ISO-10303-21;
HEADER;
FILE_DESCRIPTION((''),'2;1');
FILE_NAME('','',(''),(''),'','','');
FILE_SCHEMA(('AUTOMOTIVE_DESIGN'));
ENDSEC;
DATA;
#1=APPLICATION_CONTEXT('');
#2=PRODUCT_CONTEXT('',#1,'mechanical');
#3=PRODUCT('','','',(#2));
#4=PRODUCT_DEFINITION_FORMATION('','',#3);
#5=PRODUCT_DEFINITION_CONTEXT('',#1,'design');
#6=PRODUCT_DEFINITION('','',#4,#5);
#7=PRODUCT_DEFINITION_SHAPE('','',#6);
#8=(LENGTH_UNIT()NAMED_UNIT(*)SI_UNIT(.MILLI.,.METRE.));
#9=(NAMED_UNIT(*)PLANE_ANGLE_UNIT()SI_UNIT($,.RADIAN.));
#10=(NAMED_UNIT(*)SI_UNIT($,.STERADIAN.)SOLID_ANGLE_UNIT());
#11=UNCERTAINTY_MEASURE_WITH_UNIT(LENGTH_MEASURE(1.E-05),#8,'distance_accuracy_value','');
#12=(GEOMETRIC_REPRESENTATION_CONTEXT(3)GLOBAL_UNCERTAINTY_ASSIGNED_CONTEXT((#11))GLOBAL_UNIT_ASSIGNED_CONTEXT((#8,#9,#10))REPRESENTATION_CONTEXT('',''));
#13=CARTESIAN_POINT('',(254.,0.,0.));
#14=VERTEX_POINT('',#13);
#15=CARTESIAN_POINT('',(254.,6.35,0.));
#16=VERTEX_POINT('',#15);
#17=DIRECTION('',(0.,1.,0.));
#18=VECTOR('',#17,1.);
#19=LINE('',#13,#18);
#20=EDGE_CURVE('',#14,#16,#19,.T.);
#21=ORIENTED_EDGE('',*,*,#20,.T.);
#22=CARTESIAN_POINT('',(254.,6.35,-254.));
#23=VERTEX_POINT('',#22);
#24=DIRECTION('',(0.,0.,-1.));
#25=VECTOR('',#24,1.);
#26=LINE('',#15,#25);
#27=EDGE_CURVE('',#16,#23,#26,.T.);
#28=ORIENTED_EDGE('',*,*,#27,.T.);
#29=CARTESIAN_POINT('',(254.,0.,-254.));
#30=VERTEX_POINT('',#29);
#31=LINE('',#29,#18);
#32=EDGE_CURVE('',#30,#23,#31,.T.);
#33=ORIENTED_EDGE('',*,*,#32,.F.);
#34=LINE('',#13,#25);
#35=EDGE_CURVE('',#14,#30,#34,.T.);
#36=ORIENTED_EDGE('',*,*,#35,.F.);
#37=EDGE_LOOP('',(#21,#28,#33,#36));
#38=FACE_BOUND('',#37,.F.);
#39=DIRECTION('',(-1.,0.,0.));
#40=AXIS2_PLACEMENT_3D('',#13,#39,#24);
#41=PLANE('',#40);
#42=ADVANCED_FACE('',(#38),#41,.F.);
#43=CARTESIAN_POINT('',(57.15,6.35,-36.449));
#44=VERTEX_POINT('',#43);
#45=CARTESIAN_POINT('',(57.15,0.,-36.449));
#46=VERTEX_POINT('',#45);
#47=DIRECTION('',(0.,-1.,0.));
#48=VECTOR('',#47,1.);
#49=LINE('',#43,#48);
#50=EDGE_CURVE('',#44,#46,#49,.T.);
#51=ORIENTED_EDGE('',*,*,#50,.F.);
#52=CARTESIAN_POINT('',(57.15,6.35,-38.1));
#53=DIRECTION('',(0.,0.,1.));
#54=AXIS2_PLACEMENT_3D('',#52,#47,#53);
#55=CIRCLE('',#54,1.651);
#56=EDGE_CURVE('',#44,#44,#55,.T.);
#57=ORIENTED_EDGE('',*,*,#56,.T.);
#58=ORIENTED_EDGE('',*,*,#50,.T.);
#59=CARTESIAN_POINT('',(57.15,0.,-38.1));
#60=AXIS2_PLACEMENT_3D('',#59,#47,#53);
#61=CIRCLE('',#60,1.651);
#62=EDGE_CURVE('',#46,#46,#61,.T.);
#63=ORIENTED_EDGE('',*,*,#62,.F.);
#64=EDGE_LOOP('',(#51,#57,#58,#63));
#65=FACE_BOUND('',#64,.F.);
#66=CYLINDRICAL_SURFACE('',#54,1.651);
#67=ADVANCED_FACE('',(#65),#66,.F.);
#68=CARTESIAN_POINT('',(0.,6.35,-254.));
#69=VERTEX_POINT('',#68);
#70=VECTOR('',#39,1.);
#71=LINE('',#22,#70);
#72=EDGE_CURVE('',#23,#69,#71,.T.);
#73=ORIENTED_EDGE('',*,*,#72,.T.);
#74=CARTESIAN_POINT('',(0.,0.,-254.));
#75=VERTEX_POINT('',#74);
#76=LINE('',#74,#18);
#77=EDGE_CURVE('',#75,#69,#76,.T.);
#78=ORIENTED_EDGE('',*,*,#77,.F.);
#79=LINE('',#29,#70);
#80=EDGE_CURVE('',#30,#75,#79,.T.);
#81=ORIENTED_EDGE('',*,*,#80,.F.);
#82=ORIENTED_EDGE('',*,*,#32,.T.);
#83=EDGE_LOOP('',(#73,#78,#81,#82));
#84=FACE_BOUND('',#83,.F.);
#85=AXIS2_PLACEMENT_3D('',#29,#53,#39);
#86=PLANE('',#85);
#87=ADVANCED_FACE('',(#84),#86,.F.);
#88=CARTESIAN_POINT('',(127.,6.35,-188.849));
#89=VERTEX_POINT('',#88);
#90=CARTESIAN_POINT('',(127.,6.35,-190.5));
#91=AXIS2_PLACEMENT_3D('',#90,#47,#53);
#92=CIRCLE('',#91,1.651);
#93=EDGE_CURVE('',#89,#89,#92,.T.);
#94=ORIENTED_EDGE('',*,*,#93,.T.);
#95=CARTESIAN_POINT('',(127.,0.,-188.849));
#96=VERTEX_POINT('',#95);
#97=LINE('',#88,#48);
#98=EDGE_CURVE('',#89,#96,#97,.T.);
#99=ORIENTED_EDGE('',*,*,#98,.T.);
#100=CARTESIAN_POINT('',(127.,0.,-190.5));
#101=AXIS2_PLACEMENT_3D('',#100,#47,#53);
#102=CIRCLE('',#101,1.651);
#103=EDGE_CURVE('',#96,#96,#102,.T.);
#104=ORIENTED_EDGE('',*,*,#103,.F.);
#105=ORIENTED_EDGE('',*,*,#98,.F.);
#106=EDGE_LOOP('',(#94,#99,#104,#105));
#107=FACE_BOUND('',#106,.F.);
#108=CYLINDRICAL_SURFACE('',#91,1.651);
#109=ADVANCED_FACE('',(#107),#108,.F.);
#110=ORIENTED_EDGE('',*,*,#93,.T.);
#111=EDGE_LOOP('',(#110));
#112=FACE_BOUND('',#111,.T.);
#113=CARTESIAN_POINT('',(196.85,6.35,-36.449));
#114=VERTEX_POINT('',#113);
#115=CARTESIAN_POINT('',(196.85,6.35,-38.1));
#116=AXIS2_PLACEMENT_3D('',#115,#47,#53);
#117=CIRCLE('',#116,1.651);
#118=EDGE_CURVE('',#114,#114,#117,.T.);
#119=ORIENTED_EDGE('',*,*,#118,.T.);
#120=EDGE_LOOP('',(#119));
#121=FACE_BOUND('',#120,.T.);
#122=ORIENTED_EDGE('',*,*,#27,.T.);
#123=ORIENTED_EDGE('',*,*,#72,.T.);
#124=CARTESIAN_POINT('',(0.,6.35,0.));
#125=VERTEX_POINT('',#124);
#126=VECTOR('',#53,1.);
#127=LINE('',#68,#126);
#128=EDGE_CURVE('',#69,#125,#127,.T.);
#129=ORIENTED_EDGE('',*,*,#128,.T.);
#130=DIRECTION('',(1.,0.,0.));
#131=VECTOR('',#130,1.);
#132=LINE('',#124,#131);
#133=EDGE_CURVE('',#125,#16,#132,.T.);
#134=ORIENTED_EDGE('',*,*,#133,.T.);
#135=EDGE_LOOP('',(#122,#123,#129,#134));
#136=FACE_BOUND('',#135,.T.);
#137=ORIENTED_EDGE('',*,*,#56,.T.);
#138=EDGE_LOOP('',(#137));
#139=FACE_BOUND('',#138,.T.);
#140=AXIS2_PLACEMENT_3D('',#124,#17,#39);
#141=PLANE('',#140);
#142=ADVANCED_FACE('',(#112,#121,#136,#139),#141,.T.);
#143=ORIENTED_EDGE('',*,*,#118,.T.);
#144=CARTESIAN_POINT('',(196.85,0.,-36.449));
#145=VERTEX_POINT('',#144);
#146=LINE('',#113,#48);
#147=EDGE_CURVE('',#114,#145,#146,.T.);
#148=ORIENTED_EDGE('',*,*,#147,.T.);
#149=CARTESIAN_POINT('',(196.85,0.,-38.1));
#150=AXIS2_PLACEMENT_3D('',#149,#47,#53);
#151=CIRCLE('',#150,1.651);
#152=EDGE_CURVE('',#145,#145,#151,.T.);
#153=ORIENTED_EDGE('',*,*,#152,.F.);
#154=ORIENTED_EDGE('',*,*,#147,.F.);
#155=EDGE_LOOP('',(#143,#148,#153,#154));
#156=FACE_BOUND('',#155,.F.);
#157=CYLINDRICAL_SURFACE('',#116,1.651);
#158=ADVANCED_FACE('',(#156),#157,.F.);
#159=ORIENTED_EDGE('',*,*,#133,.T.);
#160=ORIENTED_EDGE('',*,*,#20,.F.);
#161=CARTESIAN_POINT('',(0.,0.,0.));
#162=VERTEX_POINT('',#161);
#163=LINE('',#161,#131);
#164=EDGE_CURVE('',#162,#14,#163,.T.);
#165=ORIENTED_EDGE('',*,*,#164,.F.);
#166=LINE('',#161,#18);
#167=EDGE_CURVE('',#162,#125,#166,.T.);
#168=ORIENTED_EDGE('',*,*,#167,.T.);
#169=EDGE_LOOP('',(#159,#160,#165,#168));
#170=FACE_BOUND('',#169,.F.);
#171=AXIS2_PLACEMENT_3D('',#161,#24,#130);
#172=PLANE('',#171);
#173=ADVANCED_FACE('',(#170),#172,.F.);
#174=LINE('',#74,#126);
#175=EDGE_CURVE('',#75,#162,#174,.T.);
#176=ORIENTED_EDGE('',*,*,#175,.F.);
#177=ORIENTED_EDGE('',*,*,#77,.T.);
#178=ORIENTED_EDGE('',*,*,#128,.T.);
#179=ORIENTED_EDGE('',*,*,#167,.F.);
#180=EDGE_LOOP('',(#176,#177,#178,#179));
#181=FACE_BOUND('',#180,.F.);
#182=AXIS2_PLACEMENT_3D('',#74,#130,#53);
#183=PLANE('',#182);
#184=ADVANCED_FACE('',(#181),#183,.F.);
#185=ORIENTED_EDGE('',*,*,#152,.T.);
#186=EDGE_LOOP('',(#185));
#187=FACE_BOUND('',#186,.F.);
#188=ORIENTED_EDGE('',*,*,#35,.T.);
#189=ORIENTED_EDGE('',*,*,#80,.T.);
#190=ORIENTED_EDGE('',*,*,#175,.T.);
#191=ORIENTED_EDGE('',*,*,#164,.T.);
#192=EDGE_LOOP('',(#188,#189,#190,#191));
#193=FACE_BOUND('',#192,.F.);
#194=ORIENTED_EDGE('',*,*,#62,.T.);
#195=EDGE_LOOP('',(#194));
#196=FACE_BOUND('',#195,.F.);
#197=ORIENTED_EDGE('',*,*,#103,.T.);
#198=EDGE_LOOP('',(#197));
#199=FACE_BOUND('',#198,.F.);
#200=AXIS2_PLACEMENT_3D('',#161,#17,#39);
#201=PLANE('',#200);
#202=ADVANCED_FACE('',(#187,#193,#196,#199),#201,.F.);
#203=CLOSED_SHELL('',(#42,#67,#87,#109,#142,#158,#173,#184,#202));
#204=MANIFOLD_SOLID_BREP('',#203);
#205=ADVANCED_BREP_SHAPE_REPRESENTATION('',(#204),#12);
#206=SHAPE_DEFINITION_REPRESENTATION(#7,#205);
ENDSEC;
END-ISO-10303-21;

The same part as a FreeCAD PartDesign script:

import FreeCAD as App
import Part
import Sketcher
from FreeCAD import Vector
Q = App.Units.Quantity

doc = App.newDocument("Part")
body = doc.addObject("PartDesign::Body", "Body")

# Sketch on XZ plane
sketch1 = body.newObject("Sketcher::SketchObject", "Sketch")
sketch1.AttachmentSupport = (doc.getObject("XZ_Plane"), [""])
sketch1.MapMode = "FlatFace"
sketch1.addGeometry(Part.LineSegment(Vector(0, -254, 0), Vector(0, 0, 0)), False)
sketch1.addGeometry(Part.LineSegment(Vector(0, 0, 0), Vector(254, 0, 0)), False)
sketch1.addGeometry(Part.LineSegment(Vector(254, 0, 0), Vector(254, -254, 0)), False)
sketch1.addGeometry(Part.LineSegment(Vector(254, -254, 0), Vector(0, -254, 0)), False)
sketch1.addConstraint(Sketcher.Constraint("Coincident", 0, 2, 1, 1))
sketch1.addConstraint(Sketcher.Constraint("Coincident", 1, 2, 2, 1))
sketch1.addConstraint(Sketcher.Constraint("Coincident", 2, 2, 3, 1))
sketch1.addConstraint(Sketcher.Constraint("Coincident", 3, 2, 0, 1))
sketch1.addConstraint(Sketcher.Constraint("Vertical", 0))
sketch1.addConstraint(Sketcher.Constraint("Horizontal", 1))
sketch1.addConstraint(Sketcher.Constraint("Vertical", 2))
sketch1.addConstraint(Sketcher.Constraint("Horizontal", 3))
sketch1.addConstraint(Sketcher.Constraint("Coincident", 0, 2, -1, 1))
sketch1.addConstraint(Sketcher.Constraint("Equal", 3, 0))
sketch1.addConstraint(Sketcher.Constraint("DistanceX", 1, 1, 1, 2, Q("10 in")))
pad1 = body.newObject("PartDesign::Pad", "Pad")
pad1.Profile = sketch1
pad1.Length = Q("0.25 in")
pad1.Reversed = True

# Sketch on XZ plane
sketch2 = body.newObject("Sketcher::SketchObject", "Sketch001")
sketch2.AttachmentSupport = (doc.getObject("XZ_Plane"), [""])
sketch2.MapMode = "FlatFace"
sketch2.AttachmentOffset = App.Placement(Vector(0, 0, -0.25 * 25.4), App.Rotation())
sketch2.addGeometry(Part.Circle(Vector(57.1, -38.1, 0), Vector(0, 0, 1), 1.7), False)
sketch2.addGeometry(Part.Circle(Vector(196.8, -38.1, 0), Vector(0, 0, 1), 1.7), False)
sketch2.addGeometry(Part.Circle(Vector(127, -190.5, 0), Vector(0, 0, 1), 1.7), False)
sketch2.addConstraint(Sketcher.Constraint("Equal", 0, 1))
sketch2.addConstraint(Sketcher.Constraint("Equal", 1, 2))
sketch2.addConstraint(Sketcher.Constraint("Horizontal", 0, 3, 1, 3))
sketch2.addConstraint(Sketcher.Constraint("Diameter", 0, Q("0.13 in")))
sketch2.addConstraint(Sketcher.Constraint("DistanceX", -1, 1, 2, 3, Q("5 in")))
sketch2.addConstraint(Sketcher.Constraint("DistanceY", 2, 3, 0, 3, Q("6 in")))
sketch2.addConstraint(Sketcher.Constraint("DistanceY", 0, 3, -1, 1, Q("1.5 in")))
sketch2.addConstraint(Sketcher.Constraint("DistanceX", 0, 3, 1, 3, Q("5.5 in")))
sketch2.addConstraint(Sketcher.Constraint("DistanceX", -1, 1, 0, 3, Q("2.25 in")))
doc.recompute()
hole = body.newObject("PartDesign::Hole", "Hole")
hole.Profile = sketch2
hole.ThreadType = "None"
hole.Diameter = Q("0.13 in")
hole.DepthType = "ThroughAll"
hole.Reversed = True

doc.recompute()
